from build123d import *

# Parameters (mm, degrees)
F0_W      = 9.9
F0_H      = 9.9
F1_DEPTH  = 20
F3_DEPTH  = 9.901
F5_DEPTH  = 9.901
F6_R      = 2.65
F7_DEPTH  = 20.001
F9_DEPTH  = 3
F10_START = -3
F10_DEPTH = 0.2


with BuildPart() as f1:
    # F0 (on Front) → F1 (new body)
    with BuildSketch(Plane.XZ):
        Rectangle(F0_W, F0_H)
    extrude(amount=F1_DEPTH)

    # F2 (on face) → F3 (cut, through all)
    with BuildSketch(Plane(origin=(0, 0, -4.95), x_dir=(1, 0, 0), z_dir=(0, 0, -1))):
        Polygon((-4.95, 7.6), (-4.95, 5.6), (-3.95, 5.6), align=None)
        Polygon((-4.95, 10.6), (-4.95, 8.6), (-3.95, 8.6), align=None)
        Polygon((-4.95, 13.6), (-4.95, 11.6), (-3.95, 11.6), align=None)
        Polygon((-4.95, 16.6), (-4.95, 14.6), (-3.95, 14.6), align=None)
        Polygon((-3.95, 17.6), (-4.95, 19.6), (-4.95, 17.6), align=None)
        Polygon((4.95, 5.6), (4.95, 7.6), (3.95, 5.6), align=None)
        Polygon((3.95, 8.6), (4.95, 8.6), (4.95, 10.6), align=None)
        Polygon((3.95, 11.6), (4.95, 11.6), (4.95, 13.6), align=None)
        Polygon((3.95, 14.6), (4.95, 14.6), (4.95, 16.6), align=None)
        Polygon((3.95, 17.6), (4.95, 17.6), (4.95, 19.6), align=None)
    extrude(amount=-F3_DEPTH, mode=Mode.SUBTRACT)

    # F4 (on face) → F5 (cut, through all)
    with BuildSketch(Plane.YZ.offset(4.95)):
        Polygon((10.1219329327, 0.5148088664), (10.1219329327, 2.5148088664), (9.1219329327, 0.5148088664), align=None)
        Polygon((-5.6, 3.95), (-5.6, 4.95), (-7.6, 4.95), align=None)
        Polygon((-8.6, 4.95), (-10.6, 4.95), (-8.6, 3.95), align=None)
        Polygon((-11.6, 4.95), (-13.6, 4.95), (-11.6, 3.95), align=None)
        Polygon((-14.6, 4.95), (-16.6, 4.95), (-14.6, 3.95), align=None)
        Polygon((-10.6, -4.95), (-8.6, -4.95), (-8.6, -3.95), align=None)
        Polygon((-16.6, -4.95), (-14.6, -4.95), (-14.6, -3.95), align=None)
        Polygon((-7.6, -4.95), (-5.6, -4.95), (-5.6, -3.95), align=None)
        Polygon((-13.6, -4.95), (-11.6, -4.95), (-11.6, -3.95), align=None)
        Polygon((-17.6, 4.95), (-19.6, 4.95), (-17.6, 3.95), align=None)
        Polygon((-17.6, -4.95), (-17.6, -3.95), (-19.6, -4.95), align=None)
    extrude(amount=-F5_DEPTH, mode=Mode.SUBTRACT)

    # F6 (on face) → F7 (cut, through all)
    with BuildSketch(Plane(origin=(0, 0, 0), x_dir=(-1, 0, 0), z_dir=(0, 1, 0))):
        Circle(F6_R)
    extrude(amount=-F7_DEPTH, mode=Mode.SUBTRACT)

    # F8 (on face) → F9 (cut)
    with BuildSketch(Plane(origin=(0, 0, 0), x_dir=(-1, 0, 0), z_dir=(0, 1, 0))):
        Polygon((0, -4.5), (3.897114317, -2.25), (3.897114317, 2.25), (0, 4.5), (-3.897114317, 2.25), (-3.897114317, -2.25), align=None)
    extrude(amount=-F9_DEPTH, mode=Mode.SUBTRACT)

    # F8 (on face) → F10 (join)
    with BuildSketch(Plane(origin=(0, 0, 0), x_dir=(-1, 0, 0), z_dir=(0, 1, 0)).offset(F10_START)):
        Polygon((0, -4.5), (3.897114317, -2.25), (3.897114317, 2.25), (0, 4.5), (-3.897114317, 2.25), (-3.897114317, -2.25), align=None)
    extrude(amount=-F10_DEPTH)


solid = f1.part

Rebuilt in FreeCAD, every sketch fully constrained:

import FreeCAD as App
import Part
import Sketcher

V = App.Vector
Q = App.Units.Quantity


def add_polygon(sketch, points):
    """Adds a closed chain of lines whose ends are joined by coincident constraints."""
    first, n = sketch.GeometryCount, len(points)
    for a, b in zip(points, points[1:] + points[:1]):
        sketch.addGeometry(Part.LineSegment(App.Vector(*a, 0), App.Vector(*b, 0)), False)
    for i in range(n):
        sketch.addConstraint(Sketcher.Constraint("Coincident", first + i, 2, first + (i + 1) % n, 1))

doc = App.newDocument("Part")
params = doc.addObject("Spreadsheet::Sheet", "Params")
for row, (alias, value) in enumerate([
    ("sketch1_width", "9.9 mm"),
    ("pad1_length", "20 mm"),
    ("sketch2_width", "1 mm"),
    ("sketch2_height", "2 mm"),
    ("sketch3_width", "1 mm"),
    ("sketch3_width2", "2 mm"),
    ("sketch4_diameter", "5.3 mm"),
    ("sketch5_height", "4.5 mm"),
    ("pocket4_length", "3 mm"),
    ("sketch6_height", "4.5 mm"),
    ("pad2_length", "0.2 mm"),
], start=1):
    params.set(f"A{row}", alias)
    params.set(f"B{row}", "=" + value)
    params.setAlias(f"B{row}", alias)

body = doc.addObject("PartDesign::Body", "Body")

sketch1 = body.newObject("Sketcher::SketchObject", "Sketch")
sketch1.AttachmentSupport = (doc.getObject("XZ_Plane"), [""])
sketch1.MapMode = "FlatFace"
add_polygon(sketch1, [(-5, 5), (-5, -5), (5, -5), (5, 5)])
sketch1.addConstraint(Sketcher.Constraint("Vertical", 0))
sketch1.addConstraint(Sketcher.Constraint("Horizontal", 1))
sketch1.addConstraint(Sketcher.Constraint("Vertical", 2))
sketch1.addConstraint(Sketcher.Constraint("Horizontal", 3))
sketch1.addConstraint(Sketcher.Constraint("Symmetric", 0, 2, 2, 2, -1, 1))
sketch1.addConstraint(Sketcher.Constraint("Equal", 3, 0))
sketch1.addConstraint(Sketcher.Constraint("DistanceX", 1, 1, 1, 2, 9.9))
sketch1.setExpression("Constraints[10]", "Params.sketch1_width")
pad1 = body.newObject("PartDesign::Pad", "Pad")
pad1.Profile = sketch1
pad1.setExpression("Length", "Params.pad1_length")

sketch2 = body.newObject("Sketcher::SketchObject", "Sketch001")
sketch2.AttachmentSupport = (doc.getObject("XY_Plane"), [""])
sketch2.MapMode = "FlatFace"
sketch2.AttachmentOffset = App.Placement(V(0, 0, -4.95), App.Rotation())
add_polygon(sketch2, [(-5, -7.6), (-5, -5.6), (-4, -5.6)])
add_polygon(sketch2, [(-5, -10.6), (-5, -8.6), (-4, -8.6)])
add_polygon(sketch2, [(-5, -13.6), (-5, -11.6), (-4, -11.6)])
add_polygon(sketch2, [(-5, -16.6), (-5, -14.6), (-4, -14.6)])
add_polygon(sketch2, [(-4, -17.6), (-5, -19.6), (-5, -17.6)])
add_polygon(sketch2, [(5, -5.6), (5, -7.6), (4, -5.6)])
add_polygon(sketch2, [(4, -8.6), (5, -8.6), (5, -10.6)])
add_polygon(sketch2, [(4, -11.6), (5, -11.6), (5, -13.6)])
add_polygon(sketch2, [(4, -14.6), (5, -14.6), (5, -16.6)])
add_polygon(sketch2, [(4, -17.6), (5, -17.6), (5, -19.6)])
sketch2.addConstraint(Sketcher.Constraint("Vertical", 0))
sketch2.addConstraint(Sketcher.Constraint("Horizontal", 1))
sketch2.addConstraint(Sketcher.Constraint("Vertical", 3))
sketch2.addConstraint(Sketcher.Constraint("Horizontal", 4))
sketch2.addConstraint(Sketcher.Constraint("Vertical", 6))
sketch2.addConstraint(Sketcher.Constraint("Horizontal", 7))
sketch2.addConstraint(Sketcher.Constraint("Vertical", 9))
sketch2.addConstraint(Sketcher.Constraint("Horizontal", 10))
sketch2.addConstraint(Sketcher.Constraint("Vertical", 13))
sketch2.addConstraint(Sketcher.Constraint("Horizontal", 14))
sketch2.addConstraint(Sketcher.Constraint("Vertical", 15))
sketch2.addConstraint(Sketcher.Constraint("Horizontal", 17))
sketch2.addConstraint(Sketcher.Constraint("Horizontal", 18))
sketch2.addConstraint(Sketcher.Constraint("Vertical", 19))
sketch2.addConstraint(Sketcher.Constraint("Horizontal", 21))
sketch2.addConstraint(Sketcher.Constraint("Vertical", 22))
sketch2.addConstraint(Sketcher.Constraint("Horizontal", 24))
sketch2.addConstraint(Sketcher.Constraint("Vertical", 25))
sketch2.addConstraint(Sketcher.Constraint("Horizontal", 27))
sketch2.addConstraint(Sketcher.Constraint("Vertical", 28))
sketch2.addConstraint(Sketcher.Constraint("Symmetric", 2, 2, 15, 2, -2))
sketch2.addConstraint(Sketcher.Constraint("Symmetric", 1, 2, 16, 2, -2))
sketch2.addConstraint(Sketcher.Constraint("Symmetric", 3, 2, 18, 2, -2))
sketch2.addConstraint(Sketcher.Constraint("Symmetric", 6, 2, 21, 2, -2))
sketch2.addConstraint(Sketcher.Constraint("Symmetric", 9, 2, 24, 2, -2))
sketch2.addConstraint(Sketcher.Constraint("Symmetric", 13, 2, 27, 2, -2))
sketch2.addConstraint(Sketcher.Constraint("Parallel", 2, 5))
sketch2.addConstraint(Sketcher.Constraint("Parallel", 5, 8))
sketch2.addConstraint(Sketcher.Constraint("Parallel", 8, 11))
sketch2.addConstraint(Sketcher.Constraint("Parallel", 11, 12))
sketch2.addConstraint(Sketcher.Constraint("Parallel", 16, 20))
sketch2.addConstraint(Sketcher.Constraint("Parallel", 20, 23))
sketch2.addConstraint(Sketcher.Constraint("Parallel", 23, 26))
sketch2.addConstraint(Sketcher.Constraint("Parallel", 26, 29))
sketch2.addConstraint(Sketcher.Constraint("Horizontal", 5, 2, 19, 2))
sketch2.addConstraint(Sketcher.Constraint("Horizontal", 8, 2, 22, 2))
sketch2.addConstraint(Sketcher.Constraint("Horizontal", 11, 2, 25, 2))
sketch2.addConstraint(Sketcher.Constraint("Horizontal", 12, 2, 28, 2))
sketch2.addConstraint(Sketcher.Constraint("Vertical", 2, 2, 3, 2))
sketch2.addConstraint(Sketcher.Constraint("Vertical", 1, 2, 4, 2))
sketch2.addConstraint(Sketcher.Constraint("Vertical", 5, 2, 6, 2))
sketch2.addConstraint(Sketcher.Constraint("Vertical", 4, 2, 7, 2))
sketch2.addConstraint(Sketcher.Constraint("Vertical", 8, 2, 9, 2))
sketch2.addConstraint(Sketcher.Constraint("Vertical", 7, 2, 10, 2))
sketch2.addConstraint(Sketcher.Constraint("Vertical", 11, 2, 12, 2))
sketch2.addConstraint(Sketcher.Constraint("Vertical", 10, 2, 14, 2))
sketch2.addConstraint(Sketcher.Constraint("DistanceX", 1, 1, 1, 2, 1.0))
sketch2.addConstraint(Sketcher.Constraint("DistanceY", 0, 1, 0, 2, 2.0))
sketch2.addConstraint(Sketcher.Constraint("DistanceY", 3, 2, 2, 2, 1.0))
sketch2.addConstraint(Sketcher.Constraint("DistanceY", 6, 2, 5, 2, 1.0))
sketch2.addConstraint(Sketcher.Constraint("DistanceY", 9, 2, 8, 2, 1.0))
sketch2.addConstraint(Sketcher.Constraint("DistanceY", 12, 2, 11, 2, 3.0))
sketch2.addConstraint(Sketcher.Constraint("DistanceY", 0, 2, -1, 1, 5.6))
sketch2.addConstraint(Sketcher.Constraint("DistanceX", 4, 2, 15, 2, 8.9))
sketch2.setExpression("Constraints[76]", "Params.sketch2_width")
sketch2.setExpression("Constraints[77]", "Params.sketch2_height")
pocket1 = body.newObject("PartDesign::Pocket", "Pocket")
pocket1.Profile = sketch2
pocket1.Type = "ThroughAll"
pocket1.Reversed = True

sketch3 = body.newObject("Sketcher::SketchObject", "Sketch002")
sketch3.AttachmentSupport = (doc.getObject("YZ_Plane"), [""])
sketch3.MapMode = "FlatFace"
sketch3.AttachmentOffset = App.Placement(V(0, 0, 4.95), App.Rotation())
add_polygon(sketch3, [(10.1, 0.5), (10.1, 2.5), (9.1, 0.5)])
add_polygon(sketch3, [(-5.6, 4), (-5.6, 5), (-7.6, 5)])
add_polygon(sketch3, [(-8.6, 5), (-10.6, 5), (-8.6, 4)])
add_polygon(sketch3, [(-11.6, 5), (-13.6, 5), (-11.6, 4)])
add_polygon(sketch3, [(-14.6, 5), (-16.6, 5), (-14.6, 4)])
add_polygon(sketch3, [(-10.6, -5), (-8.6, -5), (-8.6, -4)])
add_polygon(sketch3, [(-16.6, -5), (-14.6, -5), (-14.6, -4)])
add_polygon(sketch3, [(-7.6, -5), (-5.6, -5), (-5.6, -4)])
add_polygon(sketch3, [(-13.6, -5), (-11.6, -5), (-11.6, -4)])
add_polygon(sketch3, [(-17.6, 5), (-19.6, 5), (-17.6, 4)])
add_polygon(sketch3, [(-17.6, -5), (-17.6, -4), (-19.6, -5)])
sketch3.addConstraint(Sketcher.Constraint("Vertical", 0))
sketch3.addConstraint(Sketcher.Constraint("Horizontal", 2))
sketch3.addConstraint(Sketcher.Constraint("Vertical", 3))
sketch3.addConstraint(Sketcher.Constraint("Horizontal", 4))
sketch3.addConstraint(Sketcher.Constraint("Horizontal", 6))
sketch3.addConstraint(Sketcher.Constraint("Vertical", 8))
sketch3.addConstraint(Sketcher.Constraint("Horizontal", 9))
sketch3.addConstraint(Sketcher.Constraint("Vertical", 11))
sketch3.addConstraint(Sketcher.Constraint("Horizontal", 12))
sketch3.addConstraint(Sketcher.Constraint("Vertical", 14))
sketch3.addConstraint(Sketcher.Constraint("Horizontal", 15))
sketch3.addConstraint(Sketcher.Constraint("Vertical", 16))
sketch3.addConstraint(Sketcher.Constraint("Horizontal", 18))
sketch3.addConstraint(Sketcher.Constraint("Vertical", 19))
sketch3.addConstraint(Sketcher.Constraint("Horizontal", 21))
sketch3.addConstraint(Sketcher.Constraint("Vertical", 22))
sketch3.addConstraint(Sketcher.Constraint("Horizontal", 24))
sketch3.addConstraint(Sketcher.Constraint("Vertical", 25))
sketch3.addConstraint(Sketcher.Constraint("Horizontal", 27))
sketch3.addConstraint(Sketcher.Constraint("Vertical", 29))
sketch3.addConstraint(Sketcher.Constraint("Vertical", 30))
sketch3.addConstraint(Sketcher.Constraint("Horizontal", 32))
sketch3.addConstraint(Sketcher.Constraint("Symmetric", 8, 2, 15, 2, -1))
sketch3.addConstraint(Sketcher.Constraint("Symmetric", 14, 2, 18, 2, -1))
sketch3.addConstraint(Sketcher.Constraint("Symmetric", 3, 2, 21, 2, -1))
sketch3.addConstraint(Sketcher.Constraint("Symmetric", 11, 2, 24, 2, -1))
sketch3.addConstraint(Sketcher.Constraint("Symmetric", 28, 2, 30, 2, -1))
sketch3.addConstraint(Sketcher.Constraint("Symmetric", 27, 2, 31, 2, -1))
sketch3.addConstraint(Sketcher.Constraint("Perpendicular", 1, 5))
sketch3.addConstraint(Sketcher.Constraint("Parallel", 5, 7))
sketch3.addConstraint(Sketcher.Constraint("Parallel", 7, 10))
sketch3.addConstraint(Sketcher.Constraint("Parallel", 10, 13))
sketch3.addConstraint(Sketcher.Constraint("Parallel", 17, 20))
sketch3.addConstraint(Sketcher.Constraint("Parallel", 20, 23))
sketch3.addConstraint(Sketcher.Constraint("Parallel", 23, 26))
sketch3.addConstraint(Sketcher.Constraint("Parallel", 13, 28))
sketch3.addConstraint(Sketcher.Constraint("Parallel", 26, 31))
sketch3.addConstraint(Sketcher.Constraint("Horizontal", 4, 2, 6, 2))
sketch3.addConstraint(Sketcher.Constraint("Horizontal", 5, 2, 7, 2))
sketch3.addConstraint(Sketcher.Constraint("Horizontal", 8, 2, 9, 2))
sketch3.addConstraint(Sketcher.Constraint("Horizontal", 7, 2, 10, 2))
sketch3.addConstraint(Sketcher.Constraint("Horizontal", 11, 2, 12, 2))
sketch3.addConstraint(Sketcher.Constraint("Horizontal", 10, 2, 13, 2))
sketch3.addConstraint(Sketcher.Constraint("Horizontal", 16, 2, 19, 2))
sketch3.addConstraint(Sketcher.Constraint("Horizontal", 19, 2, 22, 2))
sketch3.addConstraint(Sketcher.Constraint("Horizontal", 22, 2, 25, 2))
sketch3.addConstraint(Sketcher.Constraint("Horizontal", 14, 2, 27, 2))
sketch3.addConstraint(Sketcher.Constraint("Horizontal", 13, 2, 28, 2))
sketch3.addConstraint(Sketcher.Constraint("Horizontal", 25, 2, 30, 2))
sketch3.addConstraint(Sketcher.Constraint("Equal", 32, 0))
sketch3.addConstraint(Sketcher.Constraint("DistanceX", 2, 1, 2, 2, 1.0))
sketch3.addConstraint(Sketcher.Constraint("DistanceX", 4, 2, 4, 1, 2.0))
sketch3.addConstraint(Sketcher.Constraint("DistanceX", 6, 2, 4, 2, 3.0))
sketch3.addConstraint(Sketcher.Constraint("DistanceX", 9, 2, 6, 2, 3.0))
sketch3.addConstraint(Sketcher.Constraint("DistanceX", 12, 2, 9, 2, 3.0))
sketch3.addConstraint(Sketcher.Constraint("DistanceX", 27, 2, 12, 2, 3.0))
sketch3.addConstraint(Sketcher.Constraint("DistanceX", 3, 2, -1, 1, 5.6))
sketch3.addConstraint(Sketcher.Constraint("DistanceY", 15, 2, 7, 2, 8.9))
sketch3.addConstraint(Sketcher.Constraint("DistanceY", -1, 1, 0, 2, 2.514809))
sketch3.addConstraint(Sketcher.Constraint("DistanceX", -1, 1, 0, 2, 10.121933))
sketch3.setExpression("Constraints[83]", "Params.sketch3_width")
sketch3.setExpression("Constraints[84]", "Params.sketch3_width2")
pocket2 = body.newObject("PartDesign::Pocket", "Pocket001")
pocket2.Profile = sketch3
pocket2.Type = "ThroughAll"

sketch4 = body.newObject("Sketcher::SketchObject", "Sketch003")
sketch4.AttachmentSupport = (doc.getObject("XZ_Plane"), [""])
sketch4.MapMode = "FlatFace"
sketch4.addGeometry(Part.Circle(V(0, 0, 0), V(0, 0, 1), 2.6), False)
sketch4.addConstraint(Sketcher.Constraint("Coincident", 0, 3, -1, 1))
sketch4.addConstraint(Sketcher.Constraint("Diameter", 0, 5.3))
sketch4.setExpression("Constraints[1]", "Params.sketch4_diameter")
pocket3 = body.newObject("PartDesign::Pocket", "Pocket002")
pocket3.Profile = sketch4
pocket3.Type = "ThroughAll"
pocket3.Reversed = True

sketch5 = body.newObject("Sketcher::SketchObject", "Sketch004")
sketch5.AttachmentSupport = (doc.getObject("XZ_Plane"), [""])
sketch5.MapMode = "FlatFace"
add_polygon(sketch5, [(0, -4.5), (-3.9, -2.2), (-3.9, 2.2), (0, 4.5), (3.9, 2.2), (3.9, -2.2)])
sketch5.addConstraint(Sketcher.Constraint("Vertical", 1))
sketch5.addConstraint(Sketcher.Constraint("Vertical", 4))
sketch5.addConstraint(Sketcher.Constraint("Symmetric", 0, 2, 3, 2, -1, 1))
sketch5.addConstraint(Sketcher.Constraint("Symmetric", 2, 2, 5, 2, -1, 1))
sketch5.addConstraint(Sketcher.Constraint("PointOnObject", 2, 2, -2))
sketch5.addConstraint(Sketcher.Constraint("Parallel", 2, 5))
sketch5.addConstraint(Sketcher.Constraint("Horizontal", 1, 2, 3, 2))
sketch5.addConstraint(Sketcher.Constraint("Angle", 0, Q("150 deg")))
sketch5.addConstraint(Sketcher.Constraint("DistanceY", 1, 1, 1, 2, 4.5))
sketch5.addConstraint(Sketcher.Constraint("DistanceY", 5, 2, 2, 2, 9.0))
sketch5.setExpression("Constraints[14]", "Params.sketch5_height")
pocket4 = body.newObject("PartDesign::Pocket", "Pocket003")
pocket4.Profile = sketch5
pocket4.setExpression("Length", "Params.pocket4_length")
pocket4.Reversed = True

sketch6 = body.newObject("Sketcher::SketchObject", "Sketch005")
sketch6.AttachmentSupport = (doc.getObject("XZ_Plane"), [""])
sketch6.MapMode = "FlatFace"
sketch6.AttachmentOffset = App.Placement(V(0, 0, 3), App.Rotation())
add_polygon(sketch6, [(0, -4.5), (-3.9, -2.2), (-3.9, 2.2), (0, 4.5), (3.9, 2.2), (3.9, -2.2)])
sketch6.addConstraint(Sketcher.Constraint("Vertical", 1))
sketch6.addConstraint(Sketcher.Constraint("Vertical", 4))
sketch6.addConstraint(Sketcher.Constraint("Symmetric", 0, 2, 3, 2, -1, 1))
sketch6.addConstraint(Sketcher.Constraint("Symmetric", 2, 2, 5, 2, -1, 1))
sketch6.addConstraint(Sketcher.Constraint("PointOnObject", 2, 2, -2))
sketch6.addConstraint(Sketcher.Constraint("Parallel", 2, 5))
sketch6.addConstraint(Sketcher.Constraint("Horizontal", 1, 2, 3, 2))
sketch6.addConstraint(Sketcher.Constraint("Angle", 0, Q("150 deg")))
sketch6.addConstraint(Sketcher.Constraint("DistanceY", 1, 1, 1, 2, 4.5))
sketch6.addConstraint(Sketcher.Constraint("DistanceY", 5, 2, 2, 2, 9.0))
sketch6.setExpression("Constraints[14]", "Params.sketch6_height")
pad2 = body.newObject("PartDesign::Pad", "Pad001")
pad2.Profile = sketch6
pad2.setExpression("Length", "Params.pad2_length")

doc.recompute()
